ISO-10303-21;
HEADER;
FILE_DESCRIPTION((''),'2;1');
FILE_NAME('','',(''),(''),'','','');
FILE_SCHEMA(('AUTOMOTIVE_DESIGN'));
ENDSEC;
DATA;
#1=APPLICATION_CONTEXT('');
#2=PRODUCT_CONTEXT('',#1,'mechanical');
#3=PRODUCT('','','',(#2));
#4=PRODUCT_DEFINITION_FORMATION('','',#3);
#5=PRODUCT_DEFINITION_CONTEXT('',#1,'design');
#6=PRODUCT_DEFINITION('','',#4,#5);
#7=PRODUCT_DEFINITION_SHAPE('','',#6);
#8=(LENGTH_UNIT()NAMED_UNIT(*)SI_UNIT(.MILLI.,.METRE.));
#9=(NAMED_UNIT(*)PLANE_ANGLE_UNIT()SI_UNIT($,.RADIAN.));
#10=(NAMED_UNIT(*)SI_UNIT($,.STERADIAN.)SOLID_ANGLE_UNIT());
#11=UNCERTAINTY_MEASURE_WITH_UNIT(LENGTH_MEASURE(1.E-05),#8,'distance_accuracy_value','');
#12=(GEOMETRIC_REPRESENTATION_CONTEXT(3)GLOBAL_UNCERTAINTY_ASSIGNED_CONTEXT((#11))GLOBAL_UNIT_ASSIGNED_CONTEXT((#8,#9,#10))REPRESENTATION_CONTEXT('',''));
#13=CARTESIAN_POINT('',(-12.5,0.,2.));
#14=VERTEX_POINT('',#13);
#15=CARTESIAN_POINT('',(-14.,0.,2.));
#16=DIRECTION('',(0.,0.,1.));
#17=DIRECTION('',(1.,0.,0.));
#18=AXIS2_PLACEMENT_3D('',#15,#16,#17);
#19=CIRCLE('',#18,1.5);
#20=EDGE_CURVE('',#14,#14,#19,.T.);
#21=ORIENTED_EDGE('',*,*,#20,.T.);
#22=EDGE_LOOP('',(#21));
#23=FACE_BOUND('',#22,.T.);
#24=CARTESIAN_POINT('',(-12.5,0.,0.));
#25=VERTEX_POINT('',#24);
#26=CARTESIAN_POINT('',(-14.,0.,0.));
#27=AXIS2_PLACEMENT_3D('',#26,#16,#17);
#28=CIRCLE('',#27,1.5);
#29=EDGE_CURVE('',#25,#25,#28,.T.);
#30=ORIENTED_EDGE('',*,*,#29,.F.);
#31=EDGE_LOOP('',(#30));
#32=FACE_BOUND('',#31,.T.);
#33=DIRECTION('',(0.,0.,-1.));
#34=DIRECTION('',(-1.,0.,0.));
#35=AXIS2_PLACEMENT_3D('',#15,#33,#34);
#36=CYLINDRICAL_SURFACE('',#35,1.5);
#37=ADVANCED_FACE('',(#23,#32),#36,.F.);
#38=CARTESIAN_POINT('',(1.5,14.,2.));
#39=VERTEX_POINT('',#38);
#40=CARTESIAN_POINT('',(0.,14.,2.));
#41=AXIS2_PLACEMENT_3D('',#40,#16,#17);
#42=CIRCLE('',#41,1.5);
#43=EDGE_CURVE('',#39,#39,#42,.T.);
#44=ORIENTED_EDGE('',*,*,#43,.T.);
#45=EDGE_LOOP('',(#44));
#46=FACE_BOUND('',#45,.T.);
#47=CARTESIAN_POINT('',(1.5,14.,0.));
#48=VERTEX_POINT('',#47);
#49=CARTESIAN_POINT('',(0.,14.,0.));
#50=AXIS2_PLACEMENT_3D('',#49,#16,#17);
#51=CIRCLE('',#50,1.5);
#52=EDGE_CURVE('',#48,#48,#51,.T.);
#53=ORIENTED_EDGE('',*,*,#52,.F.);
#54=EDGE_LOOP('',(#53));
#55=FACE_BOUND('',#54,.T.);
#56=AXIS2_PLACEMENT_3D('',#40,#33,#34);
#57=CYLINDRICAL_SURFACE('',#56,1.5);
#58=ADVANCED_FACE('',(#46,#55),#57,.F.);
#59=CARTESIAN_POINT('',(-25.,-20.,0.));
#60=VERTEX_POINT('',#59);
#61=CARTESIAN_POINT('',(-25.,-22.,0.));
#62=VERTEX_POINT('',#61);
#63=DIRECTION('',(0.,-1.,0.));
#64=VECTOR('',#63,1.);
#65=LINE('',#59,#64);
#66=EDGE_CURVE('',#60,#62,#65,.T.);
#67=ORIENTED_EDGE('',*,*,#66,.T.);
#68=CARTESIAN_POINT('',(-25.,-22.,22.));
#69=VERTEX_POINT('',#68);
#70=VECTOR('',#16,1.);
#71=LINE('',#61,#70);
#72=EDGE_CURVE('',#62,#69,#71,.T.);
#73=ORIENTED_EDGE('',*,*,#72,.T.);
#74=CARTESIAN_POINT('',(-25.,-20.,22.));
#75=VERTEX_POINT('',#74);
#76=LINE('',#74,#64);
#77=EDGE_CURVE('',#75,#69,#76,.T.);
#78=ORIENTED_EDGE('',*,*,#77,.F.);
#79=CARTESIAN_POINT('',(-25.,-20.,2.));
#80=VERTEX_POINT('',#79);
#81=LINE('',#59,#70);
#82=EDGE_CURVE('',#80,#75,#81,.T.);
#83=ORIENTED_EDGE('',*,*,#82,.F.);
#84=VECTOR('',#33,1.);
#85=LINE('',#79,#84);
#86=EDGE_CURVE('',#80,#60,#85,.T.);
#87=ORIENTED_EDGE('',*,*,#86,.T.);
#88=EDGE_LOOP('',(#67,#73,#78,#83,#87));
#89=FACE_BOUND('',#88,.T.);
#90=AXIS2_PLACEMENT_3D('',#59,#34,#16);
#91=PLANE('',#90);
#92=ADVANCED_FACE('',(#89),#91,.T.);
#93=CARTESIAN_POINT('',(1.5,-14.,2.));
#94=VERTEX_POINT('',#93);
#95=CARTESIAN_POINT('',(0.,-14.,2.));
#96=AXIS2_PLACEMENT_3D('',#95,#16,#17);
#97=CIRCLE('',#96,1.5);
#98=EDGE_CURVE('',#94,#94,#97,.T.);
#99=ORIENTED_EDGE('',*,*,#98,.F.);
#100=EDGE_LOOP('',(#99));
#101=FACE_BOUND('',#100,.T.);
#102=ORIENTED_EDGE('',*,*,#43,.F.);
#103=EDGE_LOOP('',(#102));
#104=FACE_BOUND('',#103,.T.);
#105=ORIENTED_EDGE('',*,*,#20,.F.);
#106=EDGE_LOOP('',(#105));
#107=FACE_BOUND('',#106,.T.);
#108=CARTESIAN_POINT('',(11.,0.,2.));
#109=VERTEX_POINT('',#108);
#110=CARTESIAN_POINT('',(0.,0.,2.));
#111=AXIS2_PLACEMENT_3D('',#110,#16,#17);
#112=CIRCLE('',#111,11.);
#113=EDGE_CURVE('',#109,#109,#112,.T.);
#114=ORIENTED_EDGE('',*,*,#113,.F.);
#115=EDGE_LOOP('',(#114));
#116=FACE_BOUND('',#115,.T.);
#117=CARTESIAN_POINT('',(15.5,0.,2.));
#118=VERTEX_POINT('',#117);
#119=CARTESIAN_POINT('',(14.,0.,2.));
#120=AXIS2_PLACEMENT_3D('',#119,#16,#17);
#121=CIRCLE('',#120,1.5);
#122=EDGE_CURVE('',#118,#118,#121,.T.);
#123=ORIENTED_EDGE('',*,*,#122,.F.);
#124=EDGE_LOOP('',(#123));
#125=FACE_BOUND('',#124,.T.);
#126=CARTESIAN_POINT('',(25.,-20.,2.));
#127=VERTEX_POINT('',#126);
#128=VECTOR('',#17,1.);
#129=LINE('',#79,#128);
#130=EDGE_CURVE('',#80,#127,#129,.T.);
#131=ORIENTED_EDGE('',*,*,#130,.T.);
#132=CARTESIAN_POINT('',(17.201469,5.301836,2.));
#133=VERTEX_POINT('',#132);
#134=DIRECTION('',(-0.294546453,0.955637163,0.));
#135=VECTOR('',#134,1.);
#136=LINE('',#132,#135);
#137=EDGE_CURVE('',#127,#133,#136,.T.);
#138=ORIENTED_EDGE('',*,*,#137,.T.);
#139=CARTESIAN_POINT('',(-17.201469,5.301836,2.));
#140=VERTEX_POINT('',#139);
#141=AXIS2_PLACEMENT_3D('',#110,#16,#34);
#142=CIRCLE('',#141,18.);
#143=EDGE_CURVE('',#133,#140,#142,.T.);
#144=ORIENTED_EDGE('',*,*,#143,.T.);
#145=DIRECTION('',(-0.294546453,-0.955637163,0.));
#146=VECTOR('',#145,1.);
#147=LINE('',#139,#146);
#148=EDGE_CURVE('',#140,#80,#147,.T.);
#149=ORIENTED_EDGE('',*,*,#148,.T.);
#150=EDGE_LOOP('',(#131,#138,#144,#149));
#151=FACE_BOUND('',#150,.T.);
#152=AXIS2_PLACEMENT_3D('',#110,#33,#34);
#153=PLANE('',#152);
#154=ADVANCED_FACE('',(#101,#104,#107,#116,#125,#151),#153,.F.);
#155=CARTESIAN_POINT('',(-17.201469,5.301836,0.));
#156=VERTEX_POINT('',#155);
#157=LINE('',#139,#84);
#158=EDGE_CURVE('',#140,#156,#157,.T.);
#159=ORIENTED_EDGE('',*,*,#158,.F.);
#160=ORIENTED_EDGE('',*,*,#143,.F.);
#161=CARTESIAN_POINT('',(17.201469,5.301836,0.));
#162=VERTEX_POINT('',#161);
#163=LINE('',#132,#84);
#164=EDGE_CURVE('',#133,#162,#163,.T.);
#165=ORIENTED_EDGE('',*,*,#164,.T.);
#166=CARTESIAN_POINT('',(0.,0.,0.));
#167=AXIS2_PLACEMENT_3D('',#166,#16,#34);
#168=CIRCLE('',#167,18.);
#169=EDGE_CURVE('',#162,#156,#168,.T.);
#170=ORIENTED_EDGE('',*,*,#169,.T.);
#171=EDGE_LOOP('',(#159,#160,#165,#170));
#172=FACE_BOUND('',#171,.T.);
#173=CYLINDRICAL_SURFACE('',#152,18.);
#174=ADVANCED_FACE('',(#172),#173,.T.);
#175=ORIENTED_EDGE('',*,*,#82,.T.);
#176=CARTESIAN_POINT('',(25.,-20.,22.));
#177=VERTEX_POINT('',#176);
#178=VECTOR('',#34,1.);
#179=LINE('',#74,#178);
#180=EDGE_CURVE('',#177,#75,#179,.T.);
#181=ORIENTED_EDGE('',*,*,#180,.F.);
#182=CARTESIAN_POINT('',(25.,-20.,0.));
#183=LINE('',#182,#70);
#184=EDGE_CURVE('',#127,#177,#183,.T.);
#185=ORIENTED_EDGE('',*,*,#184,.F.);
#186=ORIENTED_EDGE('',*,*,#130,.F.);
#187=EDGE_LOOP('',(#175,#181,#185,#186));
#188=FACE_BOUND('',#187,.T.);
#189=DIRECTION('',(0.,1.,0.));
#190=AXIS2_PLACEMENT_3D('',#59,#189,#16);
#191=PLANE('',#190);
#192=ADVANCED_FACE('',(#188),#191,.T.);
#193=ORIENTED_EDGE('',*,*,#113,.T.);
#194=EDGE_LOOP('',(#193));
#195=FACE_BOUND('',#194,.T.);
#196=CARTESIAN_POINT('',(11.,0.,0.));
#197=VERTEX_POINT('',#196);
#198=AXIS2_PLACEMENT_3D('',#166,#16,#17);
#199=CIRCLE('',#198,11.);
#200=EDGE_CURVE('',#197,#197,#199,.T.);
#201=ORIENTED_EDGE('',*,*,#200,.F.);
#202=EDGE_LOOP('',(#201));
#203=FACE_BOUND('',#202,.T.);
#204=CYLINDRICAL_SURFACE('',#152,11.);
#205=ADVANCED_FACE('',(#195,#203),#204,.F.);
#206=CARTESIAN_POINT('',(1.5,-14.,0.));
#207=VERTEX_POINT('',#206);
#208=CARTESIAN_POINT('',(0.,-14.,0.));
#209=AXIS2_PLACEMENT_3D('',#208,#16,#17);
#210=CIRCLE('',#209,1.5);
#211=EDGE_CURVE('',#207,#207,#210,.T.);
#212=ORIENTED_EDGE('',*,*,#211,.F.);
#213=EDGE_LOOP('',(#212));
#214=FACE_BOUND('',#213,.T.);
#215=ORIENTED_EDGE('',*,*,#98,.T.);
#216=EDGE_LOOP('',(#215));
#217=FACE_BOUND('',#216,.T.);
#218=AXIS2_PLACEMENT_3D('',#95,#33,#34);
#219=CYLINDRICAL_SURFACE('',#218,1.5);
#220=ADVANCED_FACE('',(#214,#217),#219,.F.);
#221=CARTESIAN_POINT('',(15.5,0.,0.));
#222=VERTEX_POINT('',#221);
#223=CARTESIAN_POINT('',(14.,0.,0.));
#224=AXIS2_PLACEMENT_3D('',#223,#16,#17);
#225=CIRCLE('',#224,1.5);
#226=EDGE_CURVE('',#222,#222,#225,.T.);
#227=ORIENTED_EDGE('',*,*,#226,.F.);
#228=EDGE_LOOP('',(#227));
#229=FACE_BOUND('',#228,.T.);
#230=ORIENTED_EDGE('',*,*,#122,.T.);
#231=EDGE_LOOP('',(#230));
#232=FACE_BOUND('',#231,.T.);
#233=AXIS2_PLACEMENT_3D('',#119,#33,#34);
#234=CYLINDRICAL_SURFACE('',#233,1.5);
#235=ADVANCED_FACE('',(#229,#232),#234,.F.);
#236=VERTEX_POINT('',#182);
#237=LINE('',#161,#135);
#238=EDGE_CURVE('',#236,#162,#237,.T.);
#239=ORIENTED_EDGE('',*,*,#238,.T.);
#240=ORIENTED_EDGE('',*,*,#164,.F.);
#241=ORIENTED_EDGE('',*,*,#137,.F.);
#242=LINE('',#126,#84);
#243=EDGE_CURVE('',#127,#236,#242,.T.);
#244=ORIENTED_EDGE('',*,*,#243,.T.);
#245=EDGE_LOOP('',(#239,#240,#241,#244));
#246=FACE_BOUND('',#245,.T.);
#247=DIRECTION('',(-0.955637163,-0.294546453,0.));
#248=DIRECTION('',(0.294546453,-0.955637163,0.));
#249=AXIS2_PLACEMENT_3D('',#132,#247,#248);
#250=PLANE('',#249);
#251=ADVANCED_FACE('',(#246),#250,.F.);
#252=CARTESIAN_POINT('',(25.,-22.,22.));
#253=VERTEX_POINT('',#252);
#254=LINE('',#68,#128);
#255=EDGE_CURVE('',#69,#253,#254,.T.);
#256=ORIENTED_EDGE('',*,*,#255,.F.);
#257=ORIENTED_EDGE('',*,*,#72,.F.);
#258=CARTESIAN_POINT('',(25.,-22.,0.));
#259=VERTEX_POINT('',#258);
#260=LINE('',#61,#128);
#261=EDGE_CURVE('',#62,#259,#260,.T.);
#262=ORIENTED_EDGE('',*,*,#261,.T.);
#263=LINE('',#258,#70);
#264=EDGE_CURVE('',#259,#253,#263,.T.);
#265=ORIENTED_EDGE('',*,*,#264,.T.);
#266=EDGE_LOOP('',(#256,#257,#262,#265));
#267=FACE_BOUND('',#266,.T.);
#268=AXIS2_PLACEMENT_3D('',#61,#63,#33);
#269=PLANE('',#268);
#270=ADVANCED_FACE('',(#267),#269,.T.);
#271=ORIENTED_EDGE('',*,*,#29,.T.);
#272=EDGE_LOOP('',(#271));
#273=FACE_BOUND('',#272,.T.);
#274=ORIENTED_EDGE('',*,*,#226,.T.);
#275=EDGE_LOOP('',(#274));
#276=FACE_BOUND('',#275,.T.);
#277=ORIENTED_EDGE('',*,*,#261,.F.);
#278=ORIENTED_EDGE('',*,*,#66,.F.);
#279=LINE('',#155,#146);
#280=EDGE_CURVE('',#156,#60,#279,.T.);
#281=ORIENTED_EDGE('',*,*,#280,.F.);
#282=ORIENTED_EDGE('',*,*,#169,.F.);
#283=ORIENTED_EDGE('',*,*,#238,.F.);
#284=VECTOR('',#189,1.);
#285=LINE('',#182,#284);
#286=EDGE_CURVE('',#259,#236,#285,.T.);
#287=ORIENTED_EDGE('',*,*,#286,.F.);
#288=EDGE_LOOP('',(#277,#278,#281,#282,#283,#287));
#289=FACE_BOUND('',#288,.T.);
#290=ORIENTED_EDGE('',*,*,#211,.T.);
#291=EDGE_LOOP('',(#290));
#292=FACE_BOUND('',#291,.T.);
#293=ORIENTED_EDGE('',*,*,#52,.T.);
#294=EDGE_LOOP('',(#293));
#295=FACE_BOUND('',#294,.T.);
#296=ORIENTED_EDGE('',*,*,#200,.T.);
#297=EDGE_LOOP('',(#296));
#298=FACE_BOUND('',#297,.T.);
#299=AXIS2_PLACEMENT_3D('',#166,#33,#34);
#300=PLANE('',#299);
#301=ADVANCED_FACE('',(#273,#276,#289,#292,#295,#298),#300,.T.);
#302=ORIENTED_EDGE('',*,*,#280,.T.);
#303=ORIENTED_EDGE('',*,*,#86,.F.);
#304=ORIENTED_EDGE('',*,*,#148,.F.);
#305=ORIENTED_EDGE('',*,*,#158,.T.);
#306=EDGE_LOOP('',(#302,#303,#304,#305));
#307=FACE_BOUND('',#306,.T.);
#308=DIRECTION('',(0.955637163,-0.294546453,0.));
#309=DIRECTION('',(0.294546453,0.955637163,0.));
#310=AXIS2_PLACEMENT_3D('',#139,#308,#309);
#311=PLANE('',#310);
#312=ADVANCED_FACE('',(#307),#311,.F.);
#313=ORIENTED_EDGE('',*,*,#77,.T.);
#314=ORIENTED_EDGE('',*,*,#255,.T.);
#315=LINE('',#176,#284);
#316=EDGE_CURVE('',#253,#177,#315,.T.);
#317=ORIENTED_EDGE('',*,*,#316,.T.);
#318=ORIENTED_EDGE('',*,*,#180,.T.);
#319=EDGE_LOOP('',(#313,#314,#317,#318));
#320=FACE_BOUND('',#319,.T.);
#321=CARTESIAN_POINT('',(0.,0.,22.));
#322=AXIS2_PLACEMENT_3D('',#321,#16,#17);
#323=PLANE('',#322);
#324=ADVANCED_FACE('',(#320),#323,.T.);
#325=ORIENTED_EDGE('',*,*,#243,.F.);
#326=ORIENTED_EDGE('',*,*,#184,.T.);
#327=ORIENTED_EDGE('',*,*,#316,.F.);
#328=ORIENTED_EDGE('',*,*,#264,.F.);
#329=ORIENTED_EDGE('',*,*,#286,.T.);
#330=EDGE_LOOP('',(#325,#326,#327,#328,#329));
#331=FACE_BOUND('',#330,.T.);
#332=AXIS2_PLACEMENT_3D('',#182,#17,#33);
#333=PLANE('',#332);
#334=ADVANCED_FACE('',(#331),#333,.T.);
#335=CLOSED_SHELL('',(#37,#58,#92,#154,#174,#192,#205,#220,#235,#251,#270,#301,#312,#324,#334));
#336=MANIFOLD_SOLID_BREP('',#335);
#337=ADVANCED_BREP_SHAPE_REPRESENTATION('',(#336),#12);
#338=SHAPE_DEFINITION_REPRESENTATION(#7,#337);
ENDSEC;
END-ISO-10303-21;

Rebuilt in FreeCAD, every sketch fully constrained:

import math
import FreeCAD as App
import Part
import Sketcher
from FreeCAD import Vector


def add_polygon(sketch, points):
    """Adds a closed chain of lines whose ends are joined by coincident constraints."""
    first, n = sketch.GeometryCount, len(points)
    for a, b in zip(points, points[1:] + points[:1]):
        sketch.addGeometry(Part.LineSegment(App.Vector(*a, 0), App.Vector(*b, 0)), False)
    for i in range(n):
        sketch.addConstraint(Sketcher.Constraint("Coincident", first + i, 2, first + (i + 1) % n, 1))

doc = App.newDocument("Part")
body = doc.addObject("PartDesign::Body", "Body")

# Sketch on XY plane
sketch1 = body.newObject("Sketcher::SketchObject", "Sketch")
sketch1.AttachmentSupport = (doc.getObject("XY_Plane"), [""])
sketch1.MapMode = "FlatFace"
sketch1.addGeometry([
    Part.LineSegment(Vector(-25, -20, 0), Vector(25, -20, 0)),  # 0
    Part.LineSegment(Vector(25, -20, 0), Vector(17.201469, 5.301836, 0)),  # 1
    Part.ArcOfCircle(Part.Circle(Vector(0, 0, 0), Vector(0, 0, 1), 18), math.radians(17.130343), math.radians(162.869657)),  # 2
    Part.LineSegment(Vector(-17.201469, 5.301836, 0), Vector(-25, -20, 0)),  # 3
    Part.Circle(Vector(0, -14, 0), Vector(0, 0, 1), 1.5),  # 4
    Part.Circle(Vector(-14, 0, 0), Vector(0, 0, 1), 1.5),  # 5
    Part.Circle(Vector(0, 0, 0), Vector(0, 0, 1), 11),  # 6
    Part.Circle(Vector(14, 0, 0), Vector(0, 0, 1), 1.5),  # 7
    Part.Circle(Vector(0, 14, 0), Vector(0, 0, 1), 1.5),  # 8
], False)
sketch1.addConstraint([
    Sketcher.Constraint("Coincident", 0, 2, 1, 1),
    Sketcher.Constraint("Tangent", 1, 2, 2, 1),
    Sketcher.Constraint("Tangent", 2, 2, 3, 1),
    Sketcher.Constraint("Coincident", 3, 2, 0, 1),
    Sketcher.Constraint("Horizontal", 0),
    Sketcher.Constraint("Coincident", 2, 3, -1, 1),
    Sketcher.Constraint("Coincident", 6, 3, -1, 1),
    Sketcher.Constraint("Equal", 4, 5),
    Sketcher.Constraint("Equal", 5, 7),
    Sketcher.Constraint("Equal", 7, 8),
    Sketcher.Constraint("Symmetric", 5, 3, 7, 3, -1, 1),
    Sketcher.Constraint("Symmetric", 4, 3, 8, 3, -1, 1),
    Sketcher.Constraint("PointOnObject", 4, 3, -2),
    Sketcher.Constraint("PointOnObject", 5, 3, -1),
    Sketcher.Constraint("Horizontal", 1, 2, 2, 2),
    Sketcher.Constraint("Diameter", 4, 3.0),
    Sketcher.Constraint("Diameter", 6, 22.0),
    Sketcher.Constraint("Radius", 2, 18.0),
    Sketcher.Constraint("DistanceX", 0, 1, 0, 2, 50.0),
    Sketcher.Constraint("DistanceY", 4, 3, -1, 1, 14.0),
    Sketcher.Constraint("DistanceX", 5, 3, -1, 1, 14.0),
    Sketcher.Constraint("DistanceY", 0, 2, -1, 1, 20.0),
])
pad1 = body.newObject("PartDesign::Pad", "Pad")
pad1.Profile = sketch1
pad1.Length = 2

# Sketch on XY plane
sketch2 = body.newObject("Sketcher::SketchObject", "Sketch001")
sketch2.AttachmentSupport = (doc.getObject("XY_Plane"), [""])
sketch2.MapMode = "FlatFace"
sketch2.AttachmentOffset = App.Placement(Vector(0, 0, 2), App.Rotation())
add_polygon(sketch2, [(-25, -20), (-25, -22), (25, -22), (25, -20)])  # lines 0-3
sketch2.addConstraint([
    Sketcher.Constraint("Vertical", 0),
    Sketcher.Constraint("Horizontal", 1),
    Sketcher.Constraint("Vertical", 2),
    Sketcher.Constraint("Horizontal", 3),
    Sketcher.Constraint("DistanceX", 1, 1, 1, 2, 50.0),
    Sketcher.Constraint("DistanceY", 0, 2, 0, 1, 2.0),
    Sketcher.Constraint("DistanceX", 0, 2, -1, 1, 25.0),
    Sketcher.Constraint("DistanceY", 0, 2, -1, 1, 22.0),
])
pad2 = body.newObject("PartDesign::Pad", "Pad001")
pad2.Profile = sketch2
pad2.Type = "TwoLengths"
pad2.Length = 20
pad2.Length2 = 2

doc.recompute()
